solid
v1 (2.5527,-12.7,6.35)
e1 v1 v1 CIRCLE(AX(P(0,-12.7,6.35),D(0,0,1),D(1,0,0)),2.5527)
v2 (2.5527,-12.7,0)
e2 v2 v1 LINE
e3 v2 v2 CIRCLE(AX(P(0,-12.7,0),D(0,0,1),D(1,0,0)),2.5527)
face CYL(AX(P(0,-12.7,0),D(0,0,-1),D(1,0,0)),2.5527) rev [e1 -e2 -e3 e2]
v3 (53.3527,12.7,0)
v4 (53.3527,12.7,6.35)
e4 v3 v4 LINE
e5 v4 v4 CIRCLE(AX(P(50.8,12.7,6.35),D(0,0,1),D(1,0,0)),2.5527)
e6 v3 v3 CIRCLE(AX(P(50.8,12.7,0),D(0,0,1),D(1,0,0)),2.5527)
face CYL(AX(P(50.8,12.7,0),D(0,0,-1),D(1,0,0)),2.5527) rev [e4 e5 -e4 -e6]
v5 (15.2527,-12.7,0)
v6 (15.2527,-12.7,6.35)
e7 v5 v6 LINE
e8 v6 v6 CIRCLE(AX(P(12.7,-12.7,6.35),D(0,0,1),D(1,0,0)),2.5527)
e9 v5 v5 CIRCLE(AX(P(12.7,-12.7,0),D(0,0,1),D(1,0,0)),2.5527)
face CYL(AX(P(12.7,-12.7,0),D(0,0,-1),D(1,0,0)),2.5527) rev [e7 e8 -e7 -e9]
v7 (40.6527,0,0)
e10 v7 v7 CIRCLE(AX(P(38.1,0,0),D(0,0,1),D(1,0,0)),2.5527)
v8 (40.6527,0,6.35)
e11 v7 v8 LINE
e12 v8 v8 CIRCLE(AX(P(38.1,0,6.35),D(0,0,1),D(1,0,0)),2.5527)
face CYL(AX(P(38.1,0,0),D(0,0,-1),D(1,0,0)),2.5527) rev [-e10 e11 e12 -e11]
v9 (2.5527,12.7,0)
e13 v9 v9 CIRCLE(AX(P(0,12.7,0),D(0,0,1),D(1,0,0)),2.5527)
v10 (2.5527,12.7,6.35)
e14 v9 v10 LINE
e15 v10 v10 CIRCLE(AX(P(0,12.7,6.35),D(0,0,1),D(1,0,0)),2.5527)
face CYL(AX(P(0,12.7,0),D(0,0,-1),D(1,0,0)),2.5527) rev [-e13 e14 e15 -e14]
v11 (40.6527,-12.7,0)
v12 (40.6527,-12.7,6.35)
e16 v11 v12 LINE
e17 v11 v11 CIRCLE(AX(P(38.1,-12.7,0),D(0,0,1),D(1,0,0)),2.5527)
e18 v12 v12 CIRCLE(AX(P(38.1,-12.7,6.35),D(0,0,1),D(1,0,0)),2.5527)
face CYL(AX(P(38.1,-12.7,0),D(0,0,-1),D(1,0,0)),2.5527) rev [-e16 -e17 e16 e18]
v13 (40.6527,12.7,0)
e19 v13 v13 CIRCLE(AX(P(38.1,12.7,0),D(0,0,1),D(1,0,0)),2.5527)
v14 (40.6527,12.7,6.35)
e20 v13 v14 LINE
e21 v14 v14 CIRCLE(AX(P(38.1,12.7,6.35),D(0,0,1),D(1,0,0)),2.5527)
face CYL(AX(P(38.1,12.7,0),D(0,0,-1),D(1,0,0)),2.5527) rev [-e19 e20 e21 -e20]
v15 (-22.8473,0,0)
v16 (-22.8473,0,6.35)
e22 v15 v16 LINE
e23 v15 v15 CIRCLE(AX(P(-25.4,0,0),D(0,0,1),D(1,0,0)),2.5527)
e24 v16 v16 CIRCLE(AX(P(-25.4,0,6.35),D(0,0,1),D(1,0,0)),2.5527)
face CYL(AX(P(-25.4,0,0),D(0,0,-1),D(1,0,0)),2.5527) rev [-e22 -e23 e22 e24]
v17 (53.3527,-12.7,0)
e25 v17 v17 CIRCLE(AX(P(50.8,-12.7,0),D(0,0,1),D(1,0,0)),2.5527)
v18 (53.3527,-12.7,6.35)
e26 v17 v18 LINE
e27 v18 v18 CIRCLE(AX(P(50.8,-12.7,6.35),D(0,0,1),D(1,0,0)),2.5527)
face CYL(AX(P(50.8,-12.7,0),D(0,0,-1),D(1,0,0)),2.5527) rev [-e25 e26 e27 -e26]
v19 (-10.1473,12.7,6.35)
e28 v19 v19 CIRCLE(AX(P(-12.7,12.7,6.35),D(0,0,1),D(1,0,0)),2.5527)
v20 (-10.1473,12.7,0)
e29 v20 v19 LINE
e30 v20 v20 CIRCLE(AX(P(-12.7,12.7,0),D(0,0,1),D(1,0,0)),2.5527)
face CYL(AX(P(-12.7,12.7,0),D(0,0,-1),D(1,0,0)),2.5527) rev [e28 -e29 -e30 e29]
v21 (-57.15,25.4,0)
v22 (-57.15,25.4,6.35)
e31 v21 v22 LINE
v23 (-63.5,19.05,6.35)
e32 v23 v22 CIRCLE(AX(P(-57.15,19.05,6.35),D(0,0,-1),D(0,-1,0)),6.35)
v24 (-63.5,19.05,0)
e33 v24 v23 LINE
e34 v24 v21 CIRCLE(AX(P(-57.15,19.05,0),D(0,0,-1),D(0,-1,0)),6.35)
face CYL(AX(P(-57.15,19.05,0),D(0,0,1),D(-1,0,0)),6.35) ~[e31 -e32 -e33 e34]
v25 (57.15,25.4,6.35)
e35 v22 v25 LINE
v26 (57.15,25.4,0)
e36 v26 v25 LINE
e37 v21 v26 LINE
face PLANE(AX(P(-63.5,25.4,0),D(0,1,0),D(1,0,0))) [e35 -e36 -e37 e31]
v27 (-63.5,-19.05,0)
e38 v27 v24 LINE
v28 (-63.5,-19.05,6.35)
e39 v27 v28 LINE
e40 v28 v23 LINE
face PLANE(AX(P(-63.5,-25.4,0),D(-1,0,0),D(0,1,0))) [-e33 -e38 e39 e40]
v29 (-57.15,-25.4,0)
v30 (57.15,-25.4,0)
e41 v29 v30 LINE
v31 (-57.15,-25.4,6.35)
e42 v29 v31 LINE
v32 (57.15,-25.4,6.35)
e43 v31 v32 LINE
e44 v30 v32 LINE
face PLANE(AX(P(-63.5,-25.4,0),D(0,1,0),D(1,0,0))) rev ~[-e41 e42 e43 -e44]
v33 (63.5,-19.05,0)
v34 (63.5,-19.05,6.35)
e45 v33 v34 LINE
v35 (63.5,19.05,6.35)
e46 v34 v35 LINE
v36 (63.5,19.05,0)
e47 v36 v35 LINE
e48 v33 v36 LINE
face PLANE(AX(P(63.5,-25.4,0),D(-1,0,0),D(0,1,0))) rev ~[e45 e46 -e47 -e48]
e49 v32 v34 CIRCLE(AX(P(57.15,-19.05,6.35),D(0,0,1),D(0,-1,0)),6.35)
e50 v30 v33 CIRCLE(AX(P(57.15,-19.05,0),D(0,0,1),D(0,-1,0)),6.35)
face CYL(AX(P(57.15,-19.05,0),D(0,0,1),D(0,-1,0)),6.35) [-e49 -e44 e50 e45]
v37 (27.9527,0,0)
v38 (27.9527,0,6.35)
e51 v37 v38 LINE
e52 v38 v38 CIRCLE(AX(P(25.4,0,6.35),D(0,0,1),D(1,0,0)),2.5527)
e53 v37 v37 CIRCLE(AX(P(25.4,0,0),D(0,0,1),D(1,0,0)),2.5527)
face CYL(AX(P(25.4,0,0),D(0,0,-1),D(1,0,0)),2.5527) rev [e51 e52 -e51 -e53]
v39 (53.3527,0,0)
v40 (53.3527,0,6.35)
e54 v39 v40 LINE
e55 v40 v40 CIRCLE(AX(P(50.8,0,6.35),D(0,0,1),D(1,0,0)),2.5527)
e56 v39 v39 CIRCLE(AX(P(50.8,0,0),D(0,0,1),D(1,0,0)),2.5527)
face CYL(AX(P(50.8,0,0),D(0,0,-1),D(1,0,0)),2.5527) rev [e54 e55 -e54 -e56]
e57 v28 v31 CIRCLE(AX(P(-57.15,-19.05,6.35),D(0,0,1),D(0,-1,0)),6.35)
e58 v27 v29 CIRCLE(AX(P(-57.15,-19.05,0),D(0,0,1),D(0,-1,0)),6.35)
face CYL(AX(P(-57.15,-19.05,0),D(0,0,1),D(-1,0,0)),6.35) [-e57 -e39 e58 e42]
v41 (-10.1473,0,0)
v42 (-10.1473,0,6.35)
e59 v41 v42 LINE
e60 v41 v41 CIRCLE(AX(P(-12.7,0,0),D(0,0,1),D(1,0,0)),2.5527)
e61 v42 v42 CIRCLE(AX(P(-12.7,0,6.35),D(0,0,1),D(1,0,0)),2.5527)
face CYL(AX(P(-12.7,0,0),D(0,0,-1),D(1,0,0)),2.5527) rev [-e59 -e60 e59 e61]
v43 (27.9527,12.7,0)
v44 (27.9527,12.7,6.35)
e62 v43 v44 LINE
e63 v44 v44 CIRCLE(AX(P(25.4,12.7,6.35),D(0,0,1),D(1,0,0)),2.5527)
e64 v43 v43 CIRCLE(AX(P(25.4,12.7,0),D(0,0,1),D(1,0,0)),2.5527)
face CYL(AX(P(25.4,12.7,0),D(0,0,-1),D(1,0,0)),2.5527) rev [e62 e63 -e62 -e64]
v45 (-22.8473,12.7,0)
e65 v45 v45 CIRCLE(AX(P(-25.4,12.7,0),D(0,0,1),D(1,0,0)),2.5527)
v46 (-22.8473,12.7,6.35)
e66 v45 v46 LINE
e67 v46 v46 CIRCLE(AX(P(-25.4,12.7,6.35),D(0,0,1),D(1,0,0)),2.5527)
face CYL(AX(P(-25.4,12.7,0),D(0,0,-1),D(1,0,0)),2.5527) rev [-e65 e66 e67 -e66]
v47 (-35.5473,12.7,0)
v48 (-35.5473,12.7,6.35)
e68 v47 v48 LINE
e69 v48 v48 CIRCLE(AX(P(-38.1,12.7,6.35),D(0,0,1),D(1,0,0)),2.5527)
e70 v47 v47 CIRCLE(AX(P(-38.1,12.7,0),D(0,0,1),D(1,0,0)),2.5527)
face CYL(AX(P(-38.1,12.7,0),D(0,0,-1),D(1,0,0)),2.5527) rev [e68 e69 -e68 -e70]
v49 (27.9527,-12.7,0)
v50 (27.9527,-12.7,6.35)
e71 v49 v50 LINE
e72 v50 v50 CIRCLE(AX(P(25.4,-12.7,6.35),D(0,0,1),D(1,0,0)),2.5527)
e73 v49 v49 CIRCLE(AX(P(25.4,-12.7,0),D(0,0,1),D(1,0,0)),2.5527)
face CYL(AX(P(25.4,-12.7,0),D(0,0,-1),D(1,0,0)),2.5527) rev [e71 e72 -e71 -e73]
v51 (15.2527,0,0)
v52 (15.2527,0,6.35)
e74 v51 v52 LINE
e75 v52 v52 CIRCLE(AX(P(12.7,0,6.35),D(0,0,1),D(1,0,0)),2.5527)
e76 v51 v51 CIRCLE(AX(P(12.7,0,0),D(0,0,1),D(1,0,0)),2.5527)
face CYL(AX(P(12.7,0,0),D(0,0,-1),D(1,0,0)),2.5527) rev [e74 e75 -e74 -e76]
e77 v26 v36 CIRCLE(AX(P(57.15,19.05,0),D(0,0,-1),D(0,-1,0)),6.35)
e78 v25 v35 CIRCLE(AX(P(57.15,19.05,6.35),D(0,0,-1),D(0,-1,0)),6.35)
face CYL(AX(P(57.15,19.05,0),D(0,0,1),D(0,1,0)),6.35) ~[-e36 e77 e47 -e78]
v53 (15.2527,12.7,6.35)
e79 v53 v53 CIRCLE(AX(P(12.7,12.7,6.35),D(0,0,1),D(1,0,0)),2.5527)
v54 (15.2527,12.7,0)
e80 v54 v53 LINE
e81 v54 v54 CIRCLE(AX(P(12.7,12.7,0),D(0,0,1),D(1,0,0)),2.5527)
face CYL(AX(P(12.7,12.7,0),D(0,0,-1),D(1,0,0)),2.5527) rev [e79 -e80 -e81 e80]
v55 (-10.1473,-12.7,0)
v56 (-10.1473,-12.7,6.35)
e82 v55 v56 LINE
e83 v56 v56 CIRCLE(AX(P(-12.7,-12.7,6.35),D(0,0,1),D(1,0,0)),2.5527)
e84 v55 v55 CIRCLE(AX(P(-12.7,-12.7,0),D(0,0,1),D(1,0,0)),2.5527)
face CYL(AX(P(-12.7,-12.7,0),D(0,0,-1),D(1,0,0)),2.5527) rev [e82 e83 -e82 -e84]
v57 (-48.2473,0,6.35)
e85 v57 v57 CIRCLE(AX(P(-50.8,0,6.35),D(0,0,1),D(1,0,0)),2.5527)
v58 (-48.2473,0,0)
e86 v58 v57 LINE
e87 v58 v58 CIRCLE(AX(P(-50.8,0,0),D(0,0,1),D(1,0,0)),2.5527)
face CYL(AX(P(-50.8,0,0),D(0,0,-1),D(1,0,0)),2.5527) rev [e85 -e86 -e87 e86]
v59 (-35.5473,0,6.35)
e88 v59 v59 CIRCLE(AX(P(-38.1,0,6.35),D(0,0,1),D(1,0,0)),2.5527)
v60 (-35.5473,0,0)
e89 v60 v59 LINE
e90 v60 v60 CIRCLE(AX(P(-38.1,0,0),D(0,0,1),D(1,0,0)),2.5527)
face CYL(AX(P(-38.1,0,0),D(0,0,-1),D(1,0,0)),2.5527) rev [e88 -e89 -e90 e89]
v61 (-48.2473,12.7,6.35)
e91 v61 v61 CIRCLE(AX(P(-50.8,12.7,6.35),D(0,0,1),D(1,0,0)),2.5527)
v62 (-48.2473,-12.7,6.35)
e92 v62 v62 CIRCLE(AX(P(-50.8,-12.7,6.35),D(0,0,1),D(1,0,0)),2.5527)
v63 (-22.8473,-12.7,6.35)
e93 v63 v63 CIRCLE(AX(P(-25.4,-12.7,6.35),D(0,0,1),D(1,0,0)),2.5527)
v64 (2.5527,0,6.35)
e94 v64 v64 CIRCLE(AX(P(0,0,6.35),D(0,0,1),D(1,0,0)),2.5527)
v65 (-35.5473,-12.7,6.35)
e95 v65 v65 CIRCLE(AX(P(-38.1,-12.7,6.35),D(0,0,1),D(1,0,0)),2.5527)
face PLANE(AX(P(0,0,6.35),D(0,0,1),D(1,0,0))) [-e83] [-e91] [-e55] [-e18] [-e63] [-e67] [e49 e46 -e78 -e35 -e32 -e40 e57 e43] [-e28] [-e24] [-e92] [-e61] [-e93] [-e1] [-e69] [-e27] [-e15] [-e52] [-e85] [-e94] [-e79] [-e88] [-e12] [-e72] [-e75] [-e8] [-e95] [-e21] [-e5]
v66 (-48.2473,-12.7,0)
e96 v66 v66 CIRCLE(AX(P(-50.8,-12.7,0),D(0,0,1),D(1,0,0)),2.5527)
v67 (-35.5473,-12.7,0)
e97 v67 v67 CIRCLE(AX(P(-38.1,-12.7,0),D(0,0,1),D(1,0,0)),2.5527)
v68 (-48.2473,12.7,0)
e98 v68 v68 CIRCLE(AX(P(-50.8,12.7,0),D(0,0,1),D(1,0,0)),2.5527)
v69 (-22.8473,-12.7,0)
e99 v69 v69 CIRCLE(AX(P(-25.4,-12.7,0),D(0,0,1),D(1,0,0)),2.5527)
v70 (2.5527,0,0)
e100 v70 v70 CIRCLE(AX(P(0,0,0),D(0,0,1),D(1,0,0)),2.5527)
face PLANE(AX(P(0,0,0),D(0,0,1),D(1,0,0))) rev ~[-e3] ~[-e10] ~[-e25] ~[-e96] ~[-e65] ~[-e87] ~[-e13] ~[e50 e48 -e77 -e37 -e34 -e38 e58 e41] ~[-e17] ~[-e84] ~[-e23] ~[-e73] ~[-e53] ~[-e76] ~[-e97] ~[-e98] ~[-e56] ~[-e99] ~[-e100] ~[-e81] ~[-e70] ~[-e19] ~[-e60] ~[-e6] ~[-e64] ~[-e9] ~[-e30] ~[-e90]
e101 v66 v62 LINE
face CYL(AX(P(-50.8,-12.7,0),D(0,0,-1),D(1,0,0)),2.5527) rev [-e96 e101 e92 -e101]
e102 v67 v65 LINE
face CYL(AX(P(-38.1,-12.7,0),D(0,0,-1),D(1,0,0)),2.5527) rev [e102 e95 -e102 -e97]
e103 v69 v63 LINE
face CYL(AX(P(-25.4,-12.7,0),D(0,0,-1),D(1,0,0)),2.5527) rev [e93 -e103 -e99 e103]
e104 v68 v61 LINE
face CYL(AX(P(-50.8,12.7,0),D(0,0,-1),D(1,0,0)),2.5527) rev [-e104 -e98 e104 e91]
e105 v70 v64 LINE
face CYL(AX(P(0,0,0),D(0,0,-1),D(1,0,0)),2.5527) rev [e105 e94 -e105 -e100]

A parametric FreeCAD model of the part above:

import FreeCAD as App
import Part
import Sketcher
Q = App.Units.Quantity


def edges_at(feature, points):
    """Names of the edges that pass closest to the given points."""
    edges = feature.Shape.Edges
    near = lambda p: min(range(len(edges)), key=lambda i: edges[i].distToShape(Part.Vertex(*p))[0])
    return sorted({f"Edge{near(p) + 1}" for p in points})

doc = App.newDocument("Part")
params = doc.addObject("Spreadsheet::Sheet", "Params")
for row, (alias, value) in enumerate([
    ("sketch1_width", "5 in"),
    ("sketch1_height", "2 in"),
    ("sketch1_diameter", "0.201 in"),
    ("pad1_length", "0.25 in"),
    ("fillet_radius", "0.25 in"),
], start=1):
    params.set(f"A{row}", alias)
    params.set(f"B{row}", "=" + value)
    params.setAlias(f"B{row}", alias)

body = doc.addObject("PartDesign::Body", "Body")

# Sketch on XY plane
sketch1 = body.newObject("Sketcher::SketchObject", "Sketch")
sketch1.AttachmentSupport = (doc.getObject("XY_Plane"), [""])
sketch1.MapMode = "FlatFace"
sketch1.addGeometry(Part.LineSegment(App.Vector(-63.5, 25.4, 0), App.Vector(-63.5, -25.4, 0)), False)
sketch1.addGeometry(Part.LineSegment(App.Vector(-63.5, -25.4, 0), App.Vector(63.5, -25.4, 0)), False)
sketch1.addGeometry(Part.LineSegment(App.Vector(63.5, -25.4, 0), App.Vector(63.5, 25.4, 0)), False)
sketch1.addGeometry(Part.LineSegment(App.Vector(63.5, 25.4, 0), App.Vector(-63.5, 25.4, 0)), False)
sketch1.addGeometry(Part.Circle(App.Vector(-50.8, -12.7, 0), App.Vector(0, 0, 1), 2.6), False)
sketch1.addGeometry(Part.Circle(App.Vector(-38.1, -12.7, 0), App.Vector(0, 0, 1), 2.6), False)
sketch1.addGeometry(Part.Circle(App.Vector(-25.4, -12.7, 0), App.Vector(0, 0, 1), 2.6), False)
sketch1.addGeometry(Part.Circle(App.Vector(-12.7, -12.7, 0), App.Vector(0, 0, 1), 2.6), False)
sketch1.addGeometry(Part.Circle(App.Vector(0, -12.7, 0), App.Vector(0, 0, 1), 2.6), False)
sketch1.addGeometry(Part.Circle(App.Vector(12.7, -12.7, 0), App.Vector(0, 0, 1), 2.6), False)
sketch1.addGeometry(Part.Circle(App.Vector(25.4, -12.7, 0), App.Vector(0, 0, 1), 2.6), False)
sketch1.addGeometry(Part.Circle(App.Vector(38.1, -12.7, 0), App.Vector(0, 0, 1), 2.6), False)
sketch1.addGeometry(Part.Circle(App.Vector(50.8, -12.7, 0), App.Vector(0, 0, 1), 2.6), False)
sketch1.addGeometry(Part.Circle(App.Vector(-50.8, 0, 0), App.Vector(0, 0, 1), 2.6), False)
sketch1.addGeometry(Part.Circle(App.Vector(-38.1, 0, 0), App.Vector(0, 0, 1), 2.6), False)
sketch1.addGeometry(Part.Circle(App.Vector(-25.4, 0, 0), App.Vector(0, 0, 1), 2.6), False)
sketch1.addGeometry(Part.Circle(App.Vector(-12.7, 0, 0), App.Vector(0, 0, 1), 2.6), False)
sketch1.addGeometry(Part.Circle(App.Vector(-50.8, 12.7, 0), App.Vector(0, 0, 1), 2.6), False)
sketch1.addGeometry(Part.Circle(App.Vector(-38.1, 12.7, 0), App.Vector(0, 0, 1), 2.6), False)
sketch1.addGeometry(Part.Circle(App.Vector(-25.4, 12.7, 0), App.Vector(0, 0, 1), 2.6), False)
sketch1.addGeometry(Part.Circle(App.Vector(-12.7, 12.7, 0), App.Vector(0, 0, 1), 2.6), False)
sketch1.addGeometry(Part.Circle(App.Vector(0, 0, 0), App.Vector(0, 0, 1), 2.6), False)
sketch1.addGeometry(Part.Circle(App.Vector(12.7, 0, 0), App.Vector(0, 0, 1), 2.6), False)
sketch1.addGeometry(Part.Circle(App.Vector(25.4, 0, 0), App.Vector(0, 0, 1), 2.6), False)
sketch1.addGeometry(Part.Circle(App.Vector(38.1, 0, 0), App.Vector(0, 0, 1), 2.6), False)
sketch1.addGeometry(Part.Circle(App.Vector(50.8, 0, 0), App.Vector(0, 0, 1), 2.6), False)
sketch1.addGeometry(Part.Circle(App.Vector(0, 12.7, 0), App.Vector(0, 0, 1), 2.6), False)
sketch1.addGeometry(Part.Circle(App.Vector(12.7, 12.7, 0), App.Vector(0, 0, 1), 2.6), False)
sketch1.addGeometry(Part.Circle(App.Vector(25.4, 12.7, 0), App.Vector(0, 0, 1), 2.6), False)
sketch1.addGeometry(Part.Circle(App.Vector(38.1, 12.7, 0), App.Vector(0, 0, 1), 2.6), False)
sketch1.addGeometry(Part.Circle(App.Vector(50.8, 12.7, 0), App.Vector(0, 0, 1), 2.6), False)
sketch1.addConstraint(Sketcher.Constraint("Coincident", 0, 2, 1, 1))
sketch1.addConstraint(Sketcher.Constraint("Coincident", 1, 2, 2, 1))
sketch1.addConstraint(Sketcher.Constraint("Coincident", 2, 2, 3, 1))
sketch1.addConstraint(Sketcher.Constraint("Coincident", 3, 2, 0, 1))
sketch1.addConstraint(Sketcher.Constraint("Vertical", 0))
sketch1.addConstraint(Sketcher.Constraint("Horizontal", 1))
sketch1.addConstraint(Sketcher.Constraint("Vertical", 2))
sketch1.addConstraint(Sketcher.Constraint("Horizontal", 3))
sketch1.addConstraint(Sketcher.Constraint("Coincident", 21, 3, -1, 1))
sketch1.addConstraint(Sketcher.Constraint("Equal", 4, 5))
sketch1.addConstraint(Sketcher.Constraint("Equal", 5, 6))
sketch1.addConstraint(Sketcher.Constraint("Equal", 6, 7))
sketch1.addConstraint(Sketcher.Constraint("Equal", 7, 8))
sketch1.addConstraint(Sketcher.Constraint("Equal", 8, 9))
sketch1.addConstraint(Sketcher.Constraint("Equal", 9, 10))
sketch1.addConstraint(Sketcher.Constraint("Equal", 10, 11))
sketch1.addConstraint(Sketcher.Constraint("Equal", 11, 12))
sketch1.addConstraint(Sketcher.Constraint("Equal", 12, 13))
sketch1.addConstraint(Sketcher.Constraint("Equal", 13, 14))
sketch1.addConstraint(Sketcher.Constraint("Equal", 14, 15))
sketch1.addConstraint(Sketcher.Constraint("Equal", 15, 16))
sketch1.addConstraint(Sketcher.Constraint("Equal", 16, 17))
sketch1.addConstraint(Sketcher.Constraint("Equal", 17, 18))
sketch1.addConstraint(Sketcher.Constraint("Equal", 18, 19))
sketch1.addConstraint(Sketcher.Constraint("Equal", 19, 20))
sketch1.addConstraint(Sketcher.Constraint("Equal", 20, 21))
sketch1.addConstraint(Sketcher.Constraint("Equal", 21, 22))
sketch1.addConstraint(Sketcher.Constraint("Equal", 22, 23))
sketch1.addConstraint(Sketcher.Constraint("Equal", 23, 24))
sketch1.addConstraint(Sketcher.Constraint("Equal", 24, 25))
sketch1.addConstraint(Sketcher.Constraint("Equal", 25, 26))
sketch1.addConstraint(Sketcher.Constraint("Equal", 26, 27))
sketch1.addConstraint(Sketcher.Constraint("Equal", 27, 28))
sketch1.addConstraint(Sketcher.Constraint("Equal", 28, 29))
sketch1.addConstraint(Sketcher.Constraint("Equal", 29, 30))
sketch1.addConstraint(Sketcher.Constraint("Symmetric", 12, 3, 17, 3, -1, 1))
sketch1.addConstraint(Sketcher.Constraint("Symmetric", 11, 3, 18, 3, -1, 1))
sketch1.addConstraint(Sketcher.Constraint("Symmetric", 10, 3, 19, 3, -1, 1))
sketch1.addConstraint(Sketcher.Constraint("Symmetric", 9, 3, 20, 3, -1, 1))
sketch1.addConstraint(Sketcher.Constraint("Symmetric", 16, 3, 22, 3, -1, 1))
sketch1.addConstraint(Sketcher.Constraint("Symmetric", 15, 3, 23, 3, -1, 1))
sketch1.addConstraint(Sketcher.Constraint("Symmetric", 14, 3, 24, 3, -1, 1))
sketch1.addConstraint(Sketcher.Constraint("Symmetric", 13, 3, 25, 3, -1, 1))
sketch1.addConstraint(Sketcher.Constraint("Symmetric", 8, 3, 26, 3, -1, 1))
sketch1.addConstraint(Sketcher.Constraint("Symmetric", 7, 3, 27, 3, -1, 1))
sketch1.addConstraint(Sketcher.Constraint("Symmetric", 6, 3, 28, 3, -1, 1))
sketch1.addConstraint(Sketcher.Constraint("Symmetric", 5, 3, 29, 3, -1, 1))
sketch1.addConstraint(Sketcher.Constraint("Symmetric", 4, 3, 30, 3, -1, 1))
sketch1.addConstraint(Sketcher.Constraint("Symmetric", 0, 2, 2, 2, -1, 1))
sketch1.addConstraint(Sketcher.Constraint("Symmetric", 7, 3, 9, 3, -2))
sketch1.addConstraint(Sketcher.Constraint("Symmetric", 6, 3, 10, 3, -2))
sketch1.addConstraint(Sketcher.Constraint("Symmetric", 5, 3, 11, 3, -2))
sketch1.addConstraint(Sketcher.Constraint("Symmetric", 4, 3, 12, 3, -2))
sketch1.addConstraint(Sketcher.Constraint("PointOnObject", 8, 3, -2))
sketch1.addConstraint(Sketcher.Constraint("PointOnObject", 13, 3, -1))
sketch1.addConstraint(Sketcher.Constraint("PointOnObject", 14, 3, -1))
sketch1.addConstraint(Sketcher.Constraint("PointOnObject", 15, 3, -1))
sketch1.addConstraint(Sketcher.Constraint("PointOnObject", 16, 3, -1))
sketch1.addConstraint(Sketcher.Constraint("Horizontal", 4, 3, 5, 3))
sketch1.addConstraint(Sketcher.Constraint("Horizontal", 5, 3, 6, 3))
sketch1.addConstraint(Sketcher.Constraint("Horizontal", 6, 3, 7, 3))
sketch1.addConstraint(Sketcher.Constraint("Horizontal", 7, 3, 8, 3))
sketch1.addConstraint(Sketcher.Constraint("Vertical", 4, 3, 13, 3))
sketch1.addConstraint(Sketcher.Constraint("Vertical", 5, 3, 14, 3))
sketch1.addConstraint(Sketcher.Constraint("Vertical", 6, 3, 15, 3))
sketch1.addConstraint(Sketcher.Constraint("Vertical", 7, 3, 16, 3))
sketch1.addConstraint(Sketcher.Constraint("DistanceX", 1, 1, 1, 2, Q("5 in")))
sketch1.addConstraint(Sketcher.Constraint("DistanceY", 0, 2, 0, 1, Q("2 in")))
sketch1.addConstraint(Sketcher.Constraint("Diameter", 4, Q("0.201 in")))
sketch1.addConstraint(Sketcher.Constraint("DistanceX", 4, 3, -1, 1, Q("2 in")))
sketch1.addConstraint(Sketcher.Constraint("DistanceX", 6, 3, -1, 1, Q("1 in")))
sketch1.addConstraint(Sketcher.Constraint("DistanceX", 5, 3, 7, 3, Q("1 in")))
sketch1.addConstraint(Sketcher.Constraint("DistanceX", 7, 3, 9, 3, Q("1 in")))
sketch1.addConstraint(Sketcher.Constraint("DistanceY", 4, 3, 17, 3, Q("1 in")))
sketch1.setExpression("Constraints[66]", "Params.sketch1_width")
sketch1.setExpression("Constraints[67]", "Params.sketch1_height")
sketch1.setExpression("Constraints[68]", "Params.sketch1_diameter")
pad1 = body.newObject("PartDesign::Pad", "Pad")
pad1.Profile = sketch1
pad1.setExpression("Length", "Params.pad1_length")
doc.recompute()

fillet = body.newObject("PartDesign::Fillet", "Fillet")
fillet.Base = (pad1, edges_at(pad1, [
    (63.5, -25.4, 3.175),
    (-63.5, -25.4, 3.175),
    (-63.5, 25.4, 3.175),
    (63.5, 25.4, 3.175),
]))
fillet.setExpression("Radius", "Params.fillet_radius")

doc.recompute()
